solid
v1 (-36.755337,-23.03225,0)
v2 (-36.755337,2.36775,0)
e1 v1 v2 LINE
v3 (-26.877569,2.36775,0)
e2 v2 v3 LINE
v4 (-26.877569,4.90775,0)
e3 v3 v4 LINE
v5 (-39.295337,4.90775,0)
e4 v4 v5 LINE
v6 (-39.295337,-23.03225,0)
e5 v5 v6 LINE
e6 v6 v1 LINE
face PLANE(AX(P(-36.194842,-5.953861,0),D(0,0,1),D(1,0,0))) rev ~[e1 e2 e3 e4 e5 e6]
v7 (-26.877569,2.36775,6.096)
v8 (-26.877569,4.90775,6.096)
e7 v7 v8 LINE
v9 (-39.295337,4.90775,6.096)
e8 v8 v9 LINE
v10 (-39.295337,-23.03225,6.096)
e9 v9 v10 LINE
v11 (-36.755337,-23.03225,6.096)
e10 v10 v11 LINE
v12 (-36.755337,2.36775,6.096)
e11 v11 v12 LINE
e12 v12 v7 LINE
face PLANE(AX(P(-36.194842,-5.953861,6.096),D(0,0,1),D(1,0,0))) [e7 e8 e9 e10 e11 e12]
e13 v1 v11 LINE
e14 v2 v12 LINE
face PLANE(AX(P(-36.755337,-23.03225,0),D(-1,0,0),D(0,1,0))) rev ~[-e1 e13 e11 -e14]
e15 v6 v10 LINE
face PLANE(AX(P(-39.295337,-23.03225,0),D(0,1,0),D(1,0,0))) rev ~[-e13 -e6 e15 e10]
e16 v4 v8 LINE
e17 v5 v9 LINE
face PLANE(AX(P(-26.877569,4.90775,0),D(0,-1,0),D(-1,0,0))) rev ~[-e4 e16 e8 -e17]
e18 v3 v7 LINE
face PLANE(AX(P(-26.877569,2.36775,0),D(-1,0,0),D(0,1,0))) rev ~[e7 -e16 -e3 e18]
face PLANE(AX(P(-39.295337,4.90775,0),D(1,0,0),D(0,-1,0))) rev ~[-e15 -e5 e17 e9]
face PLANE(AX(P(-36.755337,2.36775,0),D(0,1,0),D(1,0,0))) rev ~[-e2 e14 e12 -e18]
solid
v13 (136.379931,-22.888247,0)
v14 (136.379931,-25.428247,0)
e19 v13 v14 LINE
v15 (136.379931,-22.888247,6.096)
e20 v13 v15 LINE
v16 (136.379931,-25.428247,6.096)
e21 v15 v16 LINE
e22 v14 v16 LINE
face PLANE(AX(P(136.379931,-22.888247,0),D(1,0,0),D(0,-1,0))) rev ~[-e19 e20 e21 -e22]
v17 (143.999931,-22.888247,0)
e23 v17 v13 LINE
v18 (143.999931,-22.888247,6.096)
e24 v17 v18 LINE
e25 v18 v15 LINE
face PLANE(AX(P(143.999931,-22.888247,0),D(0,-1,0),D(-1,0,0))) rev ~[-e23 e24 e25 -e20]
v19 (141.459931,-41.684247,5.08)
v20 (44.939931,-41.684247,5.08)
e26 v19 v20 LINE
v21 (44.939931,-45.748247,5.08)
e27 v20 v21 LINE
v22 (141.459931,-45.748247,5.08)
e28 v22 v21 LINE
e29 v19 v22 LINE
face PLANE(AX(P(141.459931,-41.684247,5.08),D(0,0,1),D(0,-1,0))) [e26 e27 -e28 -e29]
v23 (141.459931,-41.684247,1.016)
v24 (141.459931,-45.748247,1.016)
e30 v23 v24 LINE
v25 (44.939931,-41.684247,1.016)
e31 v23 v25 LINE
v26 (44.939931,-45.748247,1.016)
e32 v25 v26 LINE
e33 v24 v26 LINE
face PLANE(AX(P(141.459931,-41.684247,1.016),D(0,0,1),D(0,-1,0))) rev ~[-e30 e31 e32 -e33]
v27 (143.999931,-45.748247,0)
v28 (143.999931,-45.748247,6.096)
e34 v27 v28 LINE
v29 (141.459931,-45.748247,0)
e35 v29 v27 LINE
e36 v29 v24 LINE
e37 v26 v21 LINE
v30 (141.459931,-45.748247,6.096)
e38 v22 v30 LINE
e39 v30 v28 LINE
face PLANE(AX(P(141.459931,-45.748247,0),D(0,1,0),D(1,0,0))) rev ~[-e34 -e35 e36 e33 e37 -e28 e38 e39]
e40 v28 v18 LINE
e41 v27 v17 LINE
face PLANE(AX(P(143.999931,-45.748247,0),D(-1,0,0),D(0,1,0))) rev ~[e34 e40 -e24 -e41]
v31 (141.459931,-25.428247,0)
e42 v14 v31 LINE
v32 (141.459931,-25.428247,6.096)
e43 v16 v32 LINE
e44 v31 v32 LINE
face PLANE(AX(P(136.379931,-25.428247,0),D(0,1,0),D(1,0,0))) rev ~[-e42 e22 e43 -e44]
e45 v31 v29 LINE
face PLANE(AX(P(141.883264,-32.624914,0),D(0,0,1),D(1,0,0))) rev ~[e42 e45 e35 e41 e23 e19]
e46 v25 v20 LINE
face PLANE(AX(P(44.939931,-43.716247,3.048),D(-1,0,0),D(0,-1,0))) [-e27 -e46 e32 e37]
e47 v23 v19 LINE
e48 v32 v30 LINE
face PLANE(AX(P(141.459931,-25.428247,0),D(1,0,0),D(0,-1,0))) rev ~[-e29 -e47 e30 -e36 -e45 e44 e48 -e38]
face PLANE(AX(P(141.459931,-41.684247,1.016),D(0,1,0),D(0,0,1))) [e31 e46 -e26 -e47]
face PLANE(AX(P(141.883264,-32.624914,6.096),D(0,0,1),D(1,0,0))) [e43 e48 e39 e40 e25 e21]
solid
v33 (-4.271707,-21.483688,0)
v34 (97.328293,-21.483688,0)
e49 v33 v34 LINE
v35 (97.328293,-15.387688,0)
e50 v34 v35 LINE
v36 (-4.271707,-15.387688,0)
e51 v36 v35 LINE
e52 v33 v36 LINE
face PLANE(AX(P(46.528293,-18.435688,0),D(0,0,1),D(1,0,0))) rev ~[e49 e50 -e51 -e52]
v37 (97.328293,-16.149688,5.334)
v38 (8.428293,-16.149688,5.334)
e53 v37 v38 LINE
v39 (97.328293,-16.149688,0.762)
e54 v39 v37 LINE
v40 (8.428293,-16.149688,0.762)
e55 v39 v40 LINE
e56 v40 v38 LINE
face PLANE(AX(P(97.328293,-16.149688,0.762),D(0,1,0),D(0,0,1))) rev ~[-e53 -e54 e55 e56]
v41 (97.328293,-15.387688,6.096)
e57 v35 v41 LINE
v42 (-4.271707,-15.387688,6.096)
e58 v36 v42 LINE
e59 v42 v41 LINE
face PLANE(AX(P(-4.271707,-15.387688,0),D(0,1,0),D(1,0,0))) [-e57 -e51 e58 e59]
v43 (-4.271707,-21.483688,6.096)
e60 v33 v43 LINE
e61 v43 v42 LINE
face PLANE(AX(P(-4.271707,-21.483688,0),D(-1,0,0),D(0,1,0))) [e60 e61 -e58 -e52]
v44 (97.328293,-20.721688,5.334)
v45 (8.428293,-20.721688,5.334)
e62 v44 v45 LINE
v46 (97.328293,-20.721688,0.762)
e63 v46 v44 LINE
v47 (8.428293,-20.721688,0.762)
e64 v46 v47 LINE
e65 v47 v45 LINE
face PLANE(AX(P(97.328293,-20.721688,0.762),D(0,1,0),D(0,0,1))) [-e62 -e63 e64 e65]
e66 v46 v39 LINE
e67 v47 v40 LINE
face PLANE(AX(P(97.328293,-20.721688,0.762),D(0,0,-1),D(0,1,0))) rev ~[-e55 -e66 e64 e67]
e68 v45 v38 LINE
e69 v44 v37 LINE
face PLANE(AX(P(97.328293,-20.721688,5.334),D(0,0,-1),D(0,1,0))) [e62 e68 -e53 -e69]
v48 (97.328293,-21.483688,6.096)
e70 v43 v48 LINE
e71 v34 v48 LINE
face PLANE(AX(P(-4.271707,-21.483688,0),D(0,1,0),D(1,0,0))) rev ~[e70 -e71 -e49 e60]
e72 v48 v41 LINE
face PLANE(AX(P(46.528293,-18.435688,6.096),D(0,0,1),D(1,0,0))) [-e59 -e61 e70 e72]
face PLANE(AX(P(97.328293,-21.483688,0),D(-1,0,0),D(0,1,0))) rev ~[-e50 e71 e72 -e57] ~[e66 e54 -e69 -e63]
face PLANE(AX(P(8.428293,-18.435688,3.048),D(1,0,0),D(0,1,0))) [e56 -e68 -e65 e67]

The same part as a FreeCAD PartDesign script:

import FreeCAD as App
import Part
import Sketcher

V = App.Vector
Q = App.Units.Quantity

doc = App.newDocument("Part")
body = doc.addObject("PartDesign::Body", "Body")

# Sketch on XY plane
sketch1 = body.newObject("Sketcher::SketchObject", "Sketch")
sketch1.AttachmentSupport = (doc.getObject("XY_Plane"), [""])
sketch1.MapMode = "FlatFace"
sketch1.addGeometry(Part.LineSegment(V(-26.9, 2.4, 0), V(-26.9, 4.9, 0)), False)
sketch1.addGeometry(Part.LineSegment(V(-26.9, 4.9, 0), V(-39.3, 4.9, 0)), False)
sketch1.addGeometry(Part.LineSegment(V(-39.3, 4.9, 0), V(-39.3, -23, 0)), False)
sketch1.addGeometry(Part.LineSegment(V(-39.3, -23, 0), V(-36.8, -23, 0)), False)
sketch1.addGeometry(Part.LineSegment(V(-36.8, -23, 0), V(-36.8, 2.4, 0)), False)
sketch1.addGeometry(Part.LineSegment(V(-36.8, 2.4, 0), V(-26.9, 2.4, 0)), False)
sketch1.addConstraint(Sketcher.Constraint("Coincident", 0, 2, 1, 1))
sketch1.addConstraint(Sketcher.Constraint("Coincident", 1, 2, 2, 1))
sketch1.addConstraint(Sketcher.Constraint("Coincident", 2, 2, 3, 1))
sketch1.addConstraint(Sketcher.Constraint("Coincident", 3, 2, 4, 1))
sketch1.addConstraint(Sketcher.Constraint("Coincident", 4, 2, 5, 1))
sketch1.addConstraint(Sketcher.Constraint("Coincident", 5, 2, 0, 1))
sketch1.addConstraint(Sketcher.Constraint("Vertical", 0))
sketch1.addConstraint(Sketcher.Constraint("Horizontal", 1))
sketch1.addConstraint(Sketcher.Constraint("Vertical", 2))
sketch1.addConstraint(Sketcher.Constraint("Horizontal", 3))
sketch1.addConstraint(Sketcher.Constraint("Vertical", 4))
sketch1.addConstraint(Sketcher.Constraint("Horizontal", 5))
sketch1.addConstraint(Sketcher.Constraint("Equal", 3, 0))
sketch1.addConstraint(Sketcher.Constraint("DistanceY", 4, 1, 4, 2, Q("1 in")))
sketch1.addConstraint(Sketcher.Constraint("DistanceX", 3, 1, 3, 2, Q("0.1 in")))
sketch1.addConstraint(Sketcher.Constraint("DistanceX", 1, 2, 1, 1, Q("12.417768 mm")))
sketch1.addConstraint(Sketcher.Constraint("DistanceX", 0, 2, -1, 1, Q("26.877569 mm")))
sketch1.addConstraint(Sketcher.Constraint("DistanceY", -1, 1, 0, 2, Q("4.90775 mm")))
pad1 = body.newObject("PartDesign::Pad", "Pad")
pad1.Profile = sketch1
pad1.Length = Q("0.24 in")
body2 = doc.addObject("PartDesign::Body", "Body001")

# Sketch on XY plane
sketch2 = body2.newObject("Sketcher::SketchObject", "Sketch001")
sketch2.AttachmentSupport = (doc.getObject("XY_Plane001"), [""])
sketch2.MapMode = "FlatFace"
sketch2.addGeometry(Part.LineSegment(V(-4, -15, 0), V(-4, -21, 0)), False)
sketch2.addGeometry(Part.LineSegment(V(-4, -21, 0), V(97, -21, 0)), False)
sketch2.addGeometry(Part.LineSegment(V(97, -21, 0), V(97, -15, 0)), False)
sketch2.addGeometry(Part.LineSegment(V(97, -15, 0), V(-4, -15, 0)), False)
sketch2.addConstraint(Sketcher.Constraint("Coincident", 0, 2, 1, 1))
sketch2.addConstraint(Sketcher.Constraint("Coincident", 1, 2, 2, 1))
sketch2.addConstraint(Sketcher.Constraint("Coincident", 2, 2, 3, 1))
sketch2.addConstraint(Sketcher.Constraint("Coincident", 3, 2, 0, 1))
sketch2.addConstraint(Sketcher.Constraint("Vertical", 0))
sketch2.addConstraint(Sketcher.Constraint("Horizontal", 1))
sketch2.addConstraint(Sketcher.Constraint("Vertical", 2))
sketch2.addConstraint(Sketcher.Constraint("Horizontal", 3))
sketch2.addConstraint(Sketcher.Constraint("DistanceX", 1, 1, 1, 2, Q("4 in")))
sketch2.addConstraint(Sketcher.Constraint("DistanceY", 0, 2, 0, 1, Q("0.24 in")))
sketch2.addConstraint(Sketcher.Constraint("DistanceY", 0, 2, -1, 1, Q("21.483688 mm")))
sketch2.addConstraint(Sketcher.Constraint("DistanceX", 0, 2, -1, 1, Q("4.271707 mm")))
pad2 = body2.newObject("PartDesign::Pad", "Pad001")
pad2.Profile = sketch2
pad2.Length = Q("0.24 in")

# Sketch on YZ plane
sketch3 = body2.newObject("Sketcher::SketchObject", "Sketch002")
sketch3.AttachmentSupport = (doc.getObject("YZ_Plane001"), [""])
sketch3.MapMode = "FlatFace"
sketch3.AttachmentOffset = App.Placement(V(0, 0, 97.328293), App.Rotation())
sketch3.addGeometry(Part.LineSegment(V(-20.7, 5.3, 0), V(-20.7, 0.8, 0)), False)
sketch3.addGeometry(Part.LineSegment(V(-20.7, 0.8, 0), V(-16.1, 0.8, 0)), False)
sketch3.addGeometry(Part.LineSegment(V(-16.1, 0.8, 0), V(-16.1, 5.3, 0)), False)
sketch3.addGeometry(Part.LineSegment(V(-16.1, 5.3, 0), V(-20.7, 5.3, 0)), False)
sketch3.addConstraint(Sketcher.Constraint("Coincident", 0, 2, 1, 1))
sketch3.addConstraint(Sketcher.Constraint("Coincident", 1, 2, 2, 1))
sketch3.addConstraint(Sketcher.Constraint("Coincident", 2, 2, 3, 1))
sketch3.addConstraint(Sketcher.Constraint("Coincident", 3, 2, 0, 1))
sketch3.addConstraint(Sketcher.Constraint("Vertical", 0))
sketch3.addConstraint(Sketcher.Constraint("Horizontal", 1))
sketch3.addConstraint(Sketcher.Constraint("Vertical", 2))
sketch3.addConstraint(Sketcher.Constraint("Horizontal", 3))
sketch3.addConstraint(Sketcher.Constraint("Equal", 3, 0))
sketch3.addConstraint(Sketcher.Constraint("DistanceX", 1, 1, 1, 2, Q("0.18 in")))
sketch3.addConstraint(Sketcher.Constraint("DistanceY", -1, 1, 0, 2, Q("0.03 in")))
sketch3.addConstraint(Sketcher.Constraint("DistanceX", 0, 2, -1, 1, Q("20.721688 mm")))
pocket1 = body2.newObject("PartDesign::Pocket", "Pocket")
pocket1.Profile = sketch3
pocket1.Length = Q("3.5 in")
body3 = doc.addObject("PartDesign::Body", "Body002")

# Sketch on XY plane
sketch4 = body3.newObject("Sketcher::SketchObject", "Sketch003")
sketch4.AttachmentSupport = (doc.getObject("XY_Plane002"), [""])
sketch4.MapMode = "FlatFace"
sketch4.addGeometry(Part.LineSegment(V(141.5, -25.4, 0), V(141.5, -45.7, 0)), False)
sketch4.addGeometry(Part.LineSegment(V(141.5, -45.7, 0), V(144, -45.7, 0)), False)
sketch4.addGeometry(Part.LineSegment(V(144, -45.7, 0), V(144, -22.9, 0)), False)
sketch4.addGeometry(Part.LineSegment(V(144, -22.9, 0), V(136.4, -22.9, 0)), False)
sketch4.addGeometry(Part.LineSegment(V(136.4, -22.9, 0), V(136.4, -25.4, 0)), False)
sketch4.addGeometry(Part.LineSegment(V(136.4, -25.4, 0), V(141.5, -25.4, 0)), False)
sketch4.addConstraint(Sketcher.Constraint("Coincident", 0, 2, 1, 1))
sketch4.addConstraint(Sketcher.Constraint("Coincident", 1, 2, 2, 1))
sketch4.addConstraint(Sketcher.Constraint("Coincident", 2, 2, 3, 1))
sketch4.addConstraint(Sketcher.Constraint("Coincident", 3, 2, 4, 1))
sketch4.addConstraint(Sketcher.Constraint("Coincident", 4, 2, 5, 1))
sketch4.addConstraint(Sketcher.Constraint("Coincident", 5, 2, 0, 1))
sketch4.addConstraint(Sketcher.Constraint("Vertical", 0))
sketch4.addConstraint(Sketcher.Constraint("Horizontal", 1))
sketch4.addConstraint(Sketcher.Constraint("Vertical", 2))
sketch4.addConstraint(Sketcher.Constraint("Horizontal", 3))
sketch4.addConstraint(Sketcher.Constraint("Vertical", 4))
sketch4.addConstraint(Sketcher.Constraint("Horizontal", 5))
sketch4.addConstraint(Sketcher.Constraint("Equal", 1, 4))
sketch4.addConstraint(Sketcher.Constraint("DistanceX", 1, 1, 1, 2, Q("0.1 in")))
sketch4.addConstraint(Sketcher.Constraint("DistanceX", 3, 2, 3, 1, Q("0.3 in")))
sketch4.addConstraint(Sketcher.Constraint("DistanceY", 0, 2, 0, 1, Q("0.8 in")))
sketch4.addConstraint(Sketcher.Constraint("DistanceX", -1, 1, 0, 2, Q("141.459931 mm")))
sketch4.addConstraint(Sketcher.Constraint("DistanceY", 0, 2, -1, 1, Q("45.748247 mm")))
pad3 = body3.newObject("PartDesign::Pad", "Pad002")
pad3.Profile = sketch4
pad3.Length = Q("0.24 in")

# Sketch on YZ plane
sketch5 = body3.newObject("Sketcher::SketchObject", "Sketch004")
sketch5.AttachmentSupport = (doc.getObject("YZ_Plane002"), [""])
sketch5.MapMode = "FlatFace"
sketch5.AttachmentOffset = App.Placement(V(0, 0, 141.459931), App.Rotation())
sketch5.addGeometry(Part.LineSegment(V(-41.7, 5.1, 0), V(-41.7, 1, 0)), False)
sketch5.addGeometry(Part.LineSegment(V(-41.7, 1, 0), V(-45.7, 1, 0)), False)
sketch5.addGeometry(Part.LineSegment(V(-45.7, 1, 0), V(-45.7, 5.1, 0)), False)
sketch5.addGeometry(Part.LineSegment(V(-45.7, 5.1, 0), V(-41.7, 5.1, 0)), False)
sketch5.addConstraint(Sketcher.Constraint("Coincident", 0, 2, 1, 1))
sketch5.addConstraint(Sketcher.Constraint("Coincident", 1, 2, 2, 1))
sketch5.addConstraint(Sketcher.Constraint("Coincident", 2, 2, 3, 1))
sketch5.addConstraint(Sketcher.Constraint("Coincident", 3, 2, 0, 1))
sketch5.addConstraint(Sketcher.Constraint("Vertical", 0))
sketch5.addConstraint(Sketcher.Constraint("Horizontal", 1))
sketch5.addConstraint(Sketcher.Constraint("Vertical", 2))
sketch5.addConstraint(Sketcher.Constraint("Horizontal", 3))
sketch5.addConstraint(Sketcher.Constraint("Equal", 3, 0))
sketch5.addConstraint(Sketcher.Constraint("DistanceX", 1, 2, 1, 1, Q("0.16 in")))
sketch5.addConstraint(Sketcher.Constraint("DistanceY", -1, 1, 2, 2, Q("0.2 in")))
sketch5.addConstraint(Sketcher.Constraint("DistanceX", 0, 2, -1, 1, Q("41.684247 mm")))
pad4 = body3.newObject("PartDesign::Pad", "Pad003")
pad4.Profile = sketch5
pad4.Length = Q("3.8 in")
pad4.Reversed = True

doc.recompute()
